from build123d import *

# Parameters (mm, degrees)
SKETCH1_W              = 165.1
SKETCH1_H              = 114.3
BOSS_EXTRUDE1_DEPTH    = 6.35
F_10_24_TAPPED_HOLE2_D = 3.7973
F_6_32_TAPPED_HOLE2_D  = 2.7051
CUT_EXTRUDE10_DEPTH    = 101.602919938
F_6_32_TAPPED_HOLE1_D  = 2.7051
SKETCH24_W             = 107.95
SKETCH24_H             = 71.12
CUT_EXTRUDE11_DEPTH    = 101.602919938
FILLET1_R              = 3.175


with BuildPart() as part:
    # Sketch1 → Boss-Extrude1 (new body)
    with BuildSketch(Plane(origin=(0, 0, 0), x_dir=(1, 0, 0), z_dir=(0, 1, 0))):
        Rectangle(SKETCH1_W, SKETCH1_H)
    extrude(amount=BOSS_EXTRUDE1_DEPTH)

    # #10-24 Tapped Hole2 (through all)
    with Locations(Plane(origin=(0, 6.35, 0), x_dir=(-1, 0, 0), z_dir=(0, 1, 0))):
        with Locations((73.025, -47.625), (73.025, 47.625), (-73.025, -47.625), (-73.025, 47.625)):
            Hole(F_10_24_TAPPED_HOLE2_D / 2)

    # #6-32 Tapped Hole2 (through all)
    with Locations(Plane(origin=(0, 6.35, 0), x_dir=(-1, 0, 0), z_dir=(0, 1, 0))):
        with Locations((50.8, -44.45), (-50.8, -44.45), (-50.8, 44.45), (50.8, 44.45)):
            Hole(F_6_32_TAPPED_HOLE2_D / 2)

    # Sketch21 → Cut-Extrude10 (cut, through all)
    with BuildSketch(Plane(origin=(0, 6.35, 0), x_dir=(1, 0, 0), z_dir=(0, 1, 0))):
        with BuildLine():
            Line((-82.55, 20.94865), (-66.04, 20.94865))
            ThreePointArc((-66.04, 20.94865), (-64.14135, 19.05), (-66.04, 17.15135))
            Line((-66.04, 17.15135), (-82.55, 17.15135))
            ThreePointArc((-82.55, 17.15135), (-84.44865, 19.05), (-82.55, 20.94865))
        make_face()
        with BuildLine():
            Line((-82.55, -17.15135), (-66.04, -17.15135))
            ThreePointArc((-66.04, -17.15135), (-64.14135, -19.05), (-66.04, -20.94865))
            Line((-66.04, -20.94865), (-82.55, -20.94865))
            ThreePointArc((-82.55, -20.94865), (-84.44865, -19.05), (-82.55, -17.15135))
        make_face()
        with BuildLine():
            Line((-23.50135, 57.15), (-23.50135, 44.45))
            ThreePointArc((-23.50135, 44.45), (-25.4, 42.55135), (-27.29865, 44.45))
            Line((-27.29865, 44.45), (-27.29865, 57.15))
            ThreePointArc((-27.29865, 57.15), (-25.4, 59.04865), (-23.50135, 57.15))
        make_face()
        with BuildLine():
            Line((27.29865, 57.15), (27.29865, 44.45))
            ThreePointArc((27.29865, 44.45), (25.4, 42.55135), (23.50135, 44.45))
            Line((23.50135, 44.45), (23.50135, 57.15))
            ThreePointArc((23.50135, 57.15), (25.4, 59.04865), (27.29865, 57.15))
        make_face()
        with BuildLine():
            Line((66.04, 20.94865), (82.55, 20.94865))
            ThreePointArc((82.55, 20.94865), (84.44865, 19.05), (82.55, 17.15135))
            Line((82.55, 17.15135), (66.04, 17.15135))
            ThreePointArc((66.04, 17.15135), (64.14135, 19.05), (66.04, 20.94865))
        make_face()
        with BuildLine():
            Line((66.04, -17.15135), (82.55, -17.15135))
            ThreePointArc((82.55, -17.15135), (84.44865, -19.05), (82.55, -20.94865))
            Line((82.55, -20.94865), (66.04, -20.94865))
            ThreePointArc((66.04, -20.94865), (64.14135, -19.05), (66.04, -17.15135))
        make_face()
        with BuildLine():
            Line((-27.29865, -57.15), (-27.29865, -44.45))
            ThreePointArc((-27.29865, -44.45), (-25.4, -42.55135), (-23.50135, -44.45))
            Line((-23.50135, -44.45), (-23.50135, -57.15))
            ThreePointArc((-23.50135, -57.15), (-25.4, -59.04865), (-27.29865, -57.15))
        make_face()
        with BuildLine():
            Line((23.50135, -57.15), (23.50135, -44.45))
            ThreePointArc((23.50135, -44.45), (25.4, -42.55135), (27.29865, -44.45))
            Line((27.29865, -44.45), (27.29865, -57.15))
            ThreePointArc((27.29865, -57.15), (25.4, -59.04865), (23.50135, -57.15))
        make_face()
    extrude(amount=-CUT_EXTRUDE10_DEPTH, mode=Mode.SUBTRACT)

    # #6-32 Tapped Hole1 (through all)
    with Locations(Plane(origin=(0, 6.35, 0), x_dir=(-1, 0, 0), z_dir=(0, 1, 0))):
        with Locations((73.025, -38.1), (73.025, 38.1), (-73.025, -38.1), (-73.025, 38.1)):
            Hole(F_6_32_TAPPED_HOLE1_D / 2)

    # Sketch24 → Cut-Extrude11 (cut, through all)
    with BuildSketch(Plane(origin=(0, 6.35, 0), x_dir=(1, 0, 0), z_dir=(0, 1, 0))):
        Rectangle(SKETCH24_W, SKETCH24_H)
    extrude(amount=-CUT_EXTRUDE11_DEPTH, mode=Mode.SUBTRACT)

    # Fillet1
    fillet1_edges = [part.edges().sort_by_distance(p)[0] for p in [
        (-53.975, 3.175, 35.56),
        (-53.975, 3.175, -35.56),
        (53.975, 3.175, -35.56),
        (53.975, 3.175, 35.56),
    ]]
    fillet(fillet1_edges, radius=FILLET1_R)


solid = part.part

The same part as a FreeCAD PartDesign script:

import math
import FreeCAD as App
import Part
import Sketcher
Q = App.Units.Quantity


def edges_at(feature, points):
    """Names of the edges that pass closest to the given points."""
    edges = feature.Shape.Edges
    near = lambda p: min(range(len(edges)), key=lambda i: edges[i].distToShape(Part.Vertex(*p))[0])
    return sorted({f"Edge{near(p) + 1}" for p in points})


def add_polygon(sketch, points):
    """Adds a closed chain of lines whose ends are joined by coincident constraints."""
    first, n = sketch.GeometryCount, len(points)
    for a, b in zip(points, points[1:] + points[:1]):
        sketch.addGeometry(Part.LineSegment(App.Vector(*a, 0), App.Vector(*b, 0)), False)
    for i in range(n):
        sketch.addConstraint(Sketcher.Constraint("Coincident", first + i, 2, first + (i + 1) % n, 1))

doc = App.newDocument("Part")
body = doc.addObject("PartDesign::Body", "Body")

# Sketch on XZ plane
sketch1 = body.newObject("Sketcher::SketchObject", "Sketch")
sketch1.AttachmentSupport = (doc.getObject("XZ_Plane"), [""])
sketch1.MapMode = "FlatFace"
add_polygon(sketch1, [(-83, -57), (-83, 57), (83, 57), (83, -57)])  # lines 0-3
sketch1.addConstraint(Sketcher.Constraint("Vertical", 0))
sketch1.addConstraint(Sketcher.Constraint("Horizontal", 1))
sketch1.addConstraint(Sketcher.Constraint("Vertical", 2))
sketch1.addConstraint(Sketcher.Constraint("Horizontal", 3))
sketch1.addConstraint(Sketcher.Constraint("Symmetric", 0, 2, 2, 2, -1, 1))
sketch1.addConstraint(Sketcher.Constraint("DistanceX", 1, 1, 1, 2, Q("6.5 in")))
sketch1.addConstraint(Sketcher.Constraint("DistanceY", 0, 1, 0, 2, Q("4.5 in")))
pad1 = body.newObject("PartDesign::Pad", "Pad")
pad1.Profile = sketch1
pad1.Length = Q("0.25 in")
pad1.Reversed = True

# Sketch on XZ plane
sketch2 = body.newObject("Sketcher::SketchObject", "Sketch001")
sketch2.AttachmentSupport = (doc.getObject("XZ_Plane"), [""])
sketch2.MapMode = "FlatFace"
sketch2.AttachmentOffset = App.Placement(App.Vector(0, 0, -0.25 * 25.4), App.Rotation())
sketch2.addGeometry(Part.Circle(App.Vector(-73, -47.6, 0), App.Vector(0, 0, 1), 1.9), False)
sketch2.addGeometry(Part.Circle(App.Vector(-73, 47.6, 0), App.Vector(0, 0, 1), 1.9), False)
sketch2.addGeometry(Part.Circle(App.Vector(73, -47.6, 0), App.Vector(0, 0, 1), 1.9), False)
sketch2.addGeometry(Part.Circle(App.Vector(73, 47.6, 0), App.Vector(0, 0, 1), 1.9), False)
sketch2.addConstraint(Sketcher.Constraint("Equal", 0, 1))
sketch2.addConstraint(Sketcher.Constraint("Equal", 1, 2))
sketch2.addConstraint(Sketcher.Constraint("Equal", 2, 3))
sketch2.addConstraint(Sketcher.Constraint("Symmetric", 1, 3, 2, 3, -1, 1))
sketch2.addConstraint(Sketcher.Constraint("Symmetric", 0, 3, 3, 3, -1, 1))
sketch2.addConstraint(Sketcher.Constraint("Symmetric", 0, 3, 2, 3, -2))
sketch2.addConstraint(Sketcher.Constraint("Diameter", 0, Q("0.1495 in")))
sketch2.addConstraint(Sketcher.Constraint("DistanceY", 0, 3, 1, 3, Q("3.75 in")))
sketch2.addConstraint(Sketcher.Constraint("DistanceX", 0, 3, 2, 3, Q("5.75 in")))
doc.recompute()
hole = body.newObject("PartDesign::Hole", "Hole")
hole.Profile = sketch2
hole.ThreadType = "None"
hole.Diameter = Q("0.1495 in")
hole.DepthType = "ThroughAll"
hole.Reversed = True

# Sketch on XZ plane
sketch3 = body.newObject("Sketcher::SketchObject", "Sketch002")
sketch3.AttachmentSupport = (doc.getObject("XZ_Plane"), [""])
sketch3.MapMode = "FlatFace"
sketch3.AttachmentOffset = App.Placement(App.Vector(0, 0, -0.25 * 25.4), App.Rotation())
sketch3.addGeometry(Part.Circle(App.Vector(-50.8, -44.5, 0), App.Vector(0, 0, 1), 1.4), False)
sketch3.addGeometry(Part.Circle(App.Vector(50.8, -44.5, 0), App.Vector(0, 0, 1), 1.4), False)
sketch3.addGeometry(Part.Circle(App.Vector(50.8, 44.5, 0), App.Vector(0, 0, 1), 1.4), False)
sketch3.addGeometry(Part.Circle(App.Vector(-50.8, 44.5, 0), App.Vector(0, 0, 1), 1.4), False)
sketch3.addConstraint(Sketcher.Constraint("Equal", 0, 1))
sketch3.addConstraint(Sketcher.Constraint("Equal", 1, 2))
sketch3.addConstraint(Sketcher.Constraint("Equal", 2, 3))
sketch3.addConstraint(Sketcher.Constraint("Symmetric", 0, 3, 2, 3, -1, 1))
sketch3.addConstraint(Sketcher.Constraint("Symmetric", 1, 3, 3, 3, -1, 1))
sketch3.addConstraint(Sketcher.Constraint("Symmetric", 0, 3, 1, 3, -2))
sketch3.addConstraint(Sketcher.Constraint("DistanceX", 0, 3, -1, 1, Q("2 in")))
sketch3.addConstraint(Sketcher.Constraint("Diameter", 0, Q("0.1065 in")))
sketch3.addConstraint(Sketcher.Constraint("DistanceY", 1, 3, 2, 3, Q("3.5 in")))
doc.recompute()
hole2 = body.newObject("PartDesign::Hole", "Hole001")
hole2.Profile = sketch3
hole2.ThreadType = "None"
hole2.Diameter = Q("0.1065 in")
hole2.DepthType = "ThroughAll"
hole2.Reversed = True

# Sketch on XZ plane
sketch4 = body.newObject("Sketcher::SketchObject", "Sketch003")
sketch4.AttachmentSupport = (doc.getObject("XZ_Plane"), [""])
sketch4.MapMode = "FlatFace"
sketch4.AttachmentOffset = App.Placement(App.Vector(0, 0, -0.25 * 25.4), App.Rotation())
sketch4.addGeometry(Part.LineSegment(App.Vector(-66, -20.9, 0), App.Vector(-82.5, -20.9, 0)), False)
sketch4.addGeometry(Part.ArcOfCircle(Part.Circle(App.Vector(-82.5, -19.1, 0), App.Vector(0, 0, 1), 1.9), math.radians(90), math.radians(270)), False)
sketch4.addGeometry(Part.LineSegment(App.Vector(-82.5, -17.2, 0), App.Vector(-66, -17.2, 0)), False)
sketch4.addGeometry(Part.ArcOfCircle(Part.Circle(App.Vector(-66, -19.1, 0), App.Vector(0, 0, 1), 1.9), math.radians(-90), math.radians(90)), False)
sketch4.addGeometry(Part.LineSegment(App.Vector(-66, 17.2, 0), App.Vector(-82.5, 17.2, 0)), False)
sketch4.addGeometry(Part.ArcOfCircle(Part.Circle(App.Vector(-82.5, 19.1, 0), App.Vector(0, 0, 1), 1.9), math.radians(90), math.radians(270)), False)
sketch4.addGeometry(Part.LineSegment(App.Vector(-82.5, 20.9, 0), App.Vector(-66, 20.9, 0)), False)
sketch4.addGeometry(Part.ArcOfCircle(Part.Circle(App.Vector(-66, 19.1, 0), App.Vector(0, 0, 1), 1.9), math.radians(-90), math.radians(90)), False)
sketch4.addGeometry(Part.LineSegment(App.Vector(-23.5, -44.5, 0), App.Vector(-23.5, -57.1, 0)), False)
sketch4.addGeometry(Part.ArcOfCircle(Part.Circle(App.Vector(-25.4, -57.1, 0), App.Vector(0, 0, 1), 1.9), math.radians(180), math.radians(360)), False)
sketch4.addGeometry(Part.LineSegment(App.Vector(-27.3, -57.1, 0), App.Vector(-27.3, -44.5, 0)), False)
sketch4.addGeometry(Part.ArcOfCircle(Part.Circle(App.Vector(-25.4, -44.5, 0), App.Vector(0, 0, 1), 1.9), math.radians(0), math.radians(180)), False)
sketch4.addGeometry(Part.LineSegment(App.Vector(27.3, -44.5, 0), App.Vector(27.3, -57.1, 0)), False)
sketch4.addGeometry(Part.ArcOfCircle(Part.Circle(App.Vector(25.4, -57.1, 0), App.Vector(0, 0, 1), 1.9), math.radians(180), math.radians(360)), False)
sketch4.addGeometry(Part.LineSegment(App.Vector(23.5, -57.1, 0), App.Vector(23.5, -44.5, 0)), False)
sketch4.addGeometry(Part.ArcOfCircle(Part.Circle(App.Vector(25.4, -44.5, 0), App.Vector(0, 0, 1), 1.9), math.radians(0), math.radians(180)), False)
sketch4.addGeometry(Part.LineSegment(App.Vector(82.5, -20.9, 0), App.Vector(66, -20.9, 0)), False)
sketch4.addGeometry(Part.ArcOfCircle(Part.Circle(App.Vector(66, -19.1, 0), App.Vector(0, 0, 1), 1.9), math.radians(90), math.radians(270)), False)
sketch4.addGeometry(Part.LineSegment(App.Vector(66, -17.2, 0), App.Vector(82.5, -17.2, 0)), False)
sketch4.addGeometry(Part.ArcOfCircle(Part.Circle(App.Vector(82.5, -19.1, 0), App.Vector(0, 0, 1), 1.9), math.radians(-90), math.radians(90)), False)
sketch4.addGeometry(Part.LineSegment(App.Vector(82.5, 17.2, 0), App.Vector(66, 17.2, 0)), False)
sketch4.addGeometry(Part.ArcOfCircle(Part.Circle(App.Vector(66, 19.1, 0), App.Vector(0, 0, 1), 1.9), math.radians(90), math.radians(270)), False)
sketch4.addGeometry(Part.LineSegment(App.Vector(66, 20.9, 0), App.Vector(82.5, 20.9, 0)), False)
sketch4.addGeometry(Part.ArcOfCircle(Part.Circle(App.Vector(82.5, 19.1, 0), App.Vector(0, 0, 1), 1.9), math.radians(-90), math.radians(90)), False)
sketch4.addGeometry(Part.LineSegment(App.Vector(-27.3, 44.5, 0), App.Vector(-27.3, 57.1, 0)), False)
sketch4.addGeometry(Part.ArcOfCircle(Part.Circle(App.Vector(-25.4, 57.1, 0), App.Vector(0, 0, 1), 1.9), math.radians(0), math.radians(180)), False)
sketch4.addGeometry(Part.LineSegment(App.Vector(-23.5, 57.1, 0), App.Vector(-23.5, 44.5, 0)), False)
sketch4.addGeometry(Part.ArcOfCircle(Part.Circle(App.Vector(-25.4, 44.5, 0), App.Vector(0, 0, 1), 1.9), math.radians(180), math.radians(360)), False)
sketch4.addGeometry(Part.LineSegment(App.Vector(23.5, 44.5, 0), App.Vector(23.5, 57.1, 0)), False)
sketch4.addGeometry(Part.ArcOfCircle(Part.Circle(App.Vector(25.4, 57.1, 0), App.Vector(0, 0, 1), 1.9), math.radians(0), math.radians(180)), False)
sketch4.addGeometry(Part.LineSegment(App.Vector(27.3, 57.1, 0), App.Vector(27.3, 44.5, 0)), False)
sketch4.addGeometry(Part.ArcOfCircle(Part.Circle(App.Vector(25.4, 44.5, 0), App.Vector(0, 0, 1), 1.9), math.radians(180), math.radians(360)), False)
sketch4.addConstraint(Sketcher.Constraint("Tangent", 0, 2, 1, 2))
sketch4.addConstraint(Sketcher.Constraint("Tangent", 1, 1, 2, 1))
sketch4.addConstraint(Sketcher.Constraint("Tangent", 2, 2, 3, 2))
sketch4.addConstraint(Sketcher.Constraint("Tangent", 3, 1, 0, 1))
sketch4.addConstraint(Sketcher.Constraint("Tangent", 4, 2, 5, 2))
sketch4.addConstraint(Sketcher.Constraint("Tangent", 5, 1, 6, 1))
sketch4.addConstraint(Sketcher.Constraint("Tangent", 6, 2, 7, 2))
sketch4.addConstraint(Sketcher.Constraint("Tangent", 7, 1, 4, 1))
sketch4.addConstraint(Sketcher.Constraint("Tangent", 8, 2, 9, 2))
sketch4.addConstraint(Sketcher.Constraint("Tangent", 9, 1, 10, 1))
sketch4.addConstraint(Sketcher.Constraint("Tangent", 10, 2, 11, 2))
sketch4.addConstraint(Sketcher.Constraint("Tangent", 11, 1, 8, 1))
sketch4.addConstraint(Sketcher.Constraint("Tangent", 12, 2, 13, 2))
sketch4.addConstraint(Sketcher.Constraint("Tangent", 13, 1, 14, 1))
sketch4.addConstraint(Sketcher.Constraint("Tangent", 14, 2, 15, 2))
sketch4.addConstraint(Sketcher.Constraint("Tangent", 15, 1, 12, 1))
sketch4.addConstraint(Sketcher.Constraint("Tangent", 16, 2, 17, 2))
sketch4.addConstraint(Sketcher.Constraint("Tangent", 17, 1, 18, 1))
sketch4.addConstraint(Sketcher.Constraint("Tangent", 18, 2, 19, 2))
sketch4.addConstraint(Sketcher.Constraint("Tangent", 19, 1, 16, 1))
sketch4.addConstraint(Sketcher.Constraint("Tangent", 20, 2, 21, 2))
sketch4.addConstraint(Sketcher.Constraint("Tangent", 21, 1, 22, 1))
sketch4.addConstraint(Sketcher.Constraint("Tangent", 22, 2, 23, 2))
sketch4.addConstraint(Sketcher.Constraint("Tangent", 23, 1, 20, 1))
sketch4.addConstraint(Sketcher.Constraint("Tangent", 24, 2, 25, 2))
sketch4.addConstraint(Sketcher.Constraint("Tangent", 25, 1, 26, 1))
sketch4.addConstraint(Sketcher.Constraint("Tangent", 26, 2, 27, 2))
sketch4.addConstraint(Sketcher.Constraint("Tangent", 27, 1, 24, 1))
sketch4.addConstraint(Sketcher.Constraint("Tangent", 28, 2, 29, 2))
sketch4.addConstraint(Sketcher.Constraint("Tangent", 29, 1, 30, 1))
sketch4.addConstraint(Sketcher.Constraint("Tangent", 30, 2, 31, 2))
sketch4.addConstraint(Sketcher.Constraint("Tangent", 31, 1, 28, 1))
sketch4.addConstraint(Sketcher.Constraint("Horizontal", 0))
sketch4.addConstraint(Sketcher.Constraint("Horizontal", 2))
sketch4.addConstraint(Sketcher.Constraint("Horizontal", 4))
sketch4.addConstraint(Sketcher.Constraint("Horizontal", 6))
sketch4.addConstraint(Sketcher.Constraint("Vertical", 8))
sketch4.addConstraint(Sketcher.Constraint("Vertical", 10))
sketch4.addConstraint(Sketcher.Constraint("Vertical", 12))
sketch4.addConstraint(Sketcher.Constraint("Vertical", 14))
sketch4.addConstraint(Sketcher.Constraint("Horizontal", 16))
sketch4.addConstraint(Sketcher.Constraint("Horizontal", 18))
sketch4.addConstraint(Sketcher.Constraint("Horizontal", 20))
sketch4.addConstraint(Sketcher.Constraint("Horizontal", 22))
sketch4.addConstraint(Sketcher.Constraint("Vertical", 24))
sketch4.addConstraint(Sketcher.Constraint("Vertical", 26))
sketch4.addConstraint(Sketcher.Constraint("Vertical", 28))
sketch4.addConstraint(Sketcher.Constraint("Vertical", 30))
sketch4.addConstraint(Sketcher.Constraint("Equal", 3, 5))
sketch4.addConstraint(Sketcher.Constraint("Equal", 7, 9))
sketch4.addConstraint(Sketcher.Constraint("Equal", 11, 13))
sketch4.addConstraint(Sketcher.Constraint("Equal", 15, 17))
sketch4.addConstraint(Sketcher.Constraint("Equal", 19, 21))
sketch4.addConstraint(Sketcher.Constraint("Equal", 23, 25))
sketch4.addConstraint(Sketcher.Constraint("Equal", 27, 29))
sketch4.addConstraint(Sketcher.Constraint("Symmetric", 7, 3, 17, 3, -1, 1))
sketch4.addConstraint(Sketcher.Constraint("Symmetric", 3, 3, 21, 3, -1, 1))
sketch4.addConstraint(Sketcher.Constraint("Symmetric", 13, 3, 25, 3, -1, 1))
sketch4.addConstraint(Sketcher.Constraint("Symmetric", 9, 3, 29, 3, -1, 1))
sketch4.addConstraint(Sketcher.Constraint("Symmetric", 9, 3, 13, 3, -2))
sketch4.addConstraint(Sketcher.Constraint("Symmetric", 3, 3, 17, 3, -2))
sketch4.addConstraint(Sketcher.Constraint("Horizontal", 11, 3, 15, 3))
sketch4.addConstraint(Sketcher.Constraint("Horizontal", 27, 3, 31, 3))
sketch4.addConstraint(Sketcher.Constraint("Vertical", 1, 3, 5, 3))
sketch4.addConstraint(Sketcher.Constraint("Vertical", 19, 3, 23, 3))
sketch4.addConstraint(Sketcher.Constraint("Equal", 6, 16))
sketch4.addConstraint(Sketcher.Constraint("Equal", 14, 24))
sketch4.addConstraint(Sketcher.Constraint("DistanceY", 8, 2, 8, 1, Q("0.5 in")))
sketch4.addConstraint(Sketcher.Constraint("DistanceX", 9, 3, -1, 1, Q("1 in")))
sketch4.addConstraint(Sketcher.Constraint("DistanceY", 9, 3, 7, 3, Q("3 in")))
sketch4.addConstraint(Sketcher.Constraint("DistanceY", 11, 3, 3, 3, Q("1 in")))
sketch4.addConstraint(Sketcher.Constraint("DistanceX", 0, 2, 0, 1, Q("0.65 in")))
sketch4.addConstraint(Sketcher.Constraint("DistanceX", 3, 3, -1, 1, Q("2.6 in")))
sketch4.addConstraint(Sketcher.Constraint("Radius", 1, 1.89865))
pocket1 = body.newObject("PartDesign::Pocket", "Pocket")
pocket1.Profile = sketch4
pocket1.Type = "ThroughAll"
pocket1.Reversed = True

# Sketch on XZ plane
sketch5 = body.newObject("Sketcher::SketchObject", "Sketch004")
sketch5.AttachmentSupport = (doc.getObject("XZ_Plane"), [""])
sketch5.MapMode = "FlatFace"
sketch5.AttachmentOffset = App.Placement(App.Vector(0, 0, -0.25 * 25.4), App.Rotation())
sketch5.addGeometry(Part.Circle(App.Vector(-73, -38.1, 0), App.Vector(0, 0, 1), 1.4), False)
sketch5.addGeometry(Part.Circle(App.Vector(-73, 38.1, 0), App.Vector(0, 0, 1), 1.4), False)
sketch5.addGeometry(Part.Circle(App.Vector(73, -38.1, 0), App.Vector(0, 0, 1), 1.4), False)
sketch5.addGeometry(Part.Circle(App.Vector(73, 38.1, 0), App.Vector(0, 0, 1), 1.4), False)
sketch5.addConstraint(Sketcher.Constraint("Equal", 0, 1))
sketch5.addConstraint(Sketcher.Constraint("Equal", 1, 2))
sketch5.addConstraint(Sketcher.Constraint("Equal", 2, 3))
sketch5.addConstraint(Sketcher.Constraint("Symmetric", 1, 3, 2, 3, -1, 1))
sketch5.addConstraint(Sketcher.Constraint("Symmetric", 0, 3, 3, 3, -1, 1))
sketch5.addConstraint(Sketcher.Constraint("Symmetric", 0, 3, 2, 3, -2))
sketch5.addConstraint(Sketcher.Constraint("DistanceY", 0, 3, 1, 3, Q("3 in")))
sketch5.addConstraint(Sketcher.Constraint("Diameter", 0, Q("0.1065 in")))
sketch5.addConstraint(Sketcher.Constraint("DistanceX", 0, 3, 2, 3, Q("5.75 in")))
doc.recompute()
hole3 = body.newObject("PartDesign::Hole", "Hole002")
hole3.Profile = sketch5
hole3.ThreadType = "None"
hole3.Diameter = Q("0.1065 in")
hole3.DepthType = "ThroughAll"
hole3.Reversed = True

# Sketch on XZ plane
sketch6 = body.newObject("Sketcher::SketchObject", "Sketch005")
sketch6.AttachmentSupport = (doc.getObject("XZ_Plane"), [""])
sketch6.MapMode = "FlatFace"
sketch6.AttachmentOffset = App.Placement(App.Vector(0, 0, -0.25 * 25.4), App.Rotation())
add_polygon(sketch6, [(-54, -36), (-54, 36), (54, 36), (54, -36)])  # lines 0-3
sketch6.addConstraint(Sketcher.Constraint("Vertical", 0))
sketch6.addConstraint(Sketcher.Constraint("Horizontal", 1))
sketch6.addConstraint(Sketcher.Constraint("Vertical", 2))
sketch6.addConstraint(Sketcher.Constraint("Horizontal", 3))
sketch6.addConstraint(Sketcher.Constraint("Symmetric", 0, 2, 2, 2, -1, 1))
sketch6.addConstraint(Sketcher.Constraint("DistanceY", 0, 1, 0, 2, Q("2.8 in")))
sketch6.addConstraint(Sketcher.Constraint("DistanceX", 1, 1, 1, 2, Q("4.25 in")))
pocket2 = body.newObject("PartDesign::Pocket", "Pocket001")
pocket2.Profile = sketch6
pocket2.Type = "ThroughAll"
pocket2.Reversed = True
doc.recompute()

fillet = body.newObject("PartDesign::Fillet", "Fillet")
fillet.Base = (pocket2, edges_at(pocket2, [
    (-53.975, 3.175, 35.56),
    (-53.975, 3.175, -35.56),
    (53.975, 3.175, -35.56),
    (53.975, 3.175, 35.56),
]))
fillet.Radius = Q("0.125 in")

doc.recompute()
